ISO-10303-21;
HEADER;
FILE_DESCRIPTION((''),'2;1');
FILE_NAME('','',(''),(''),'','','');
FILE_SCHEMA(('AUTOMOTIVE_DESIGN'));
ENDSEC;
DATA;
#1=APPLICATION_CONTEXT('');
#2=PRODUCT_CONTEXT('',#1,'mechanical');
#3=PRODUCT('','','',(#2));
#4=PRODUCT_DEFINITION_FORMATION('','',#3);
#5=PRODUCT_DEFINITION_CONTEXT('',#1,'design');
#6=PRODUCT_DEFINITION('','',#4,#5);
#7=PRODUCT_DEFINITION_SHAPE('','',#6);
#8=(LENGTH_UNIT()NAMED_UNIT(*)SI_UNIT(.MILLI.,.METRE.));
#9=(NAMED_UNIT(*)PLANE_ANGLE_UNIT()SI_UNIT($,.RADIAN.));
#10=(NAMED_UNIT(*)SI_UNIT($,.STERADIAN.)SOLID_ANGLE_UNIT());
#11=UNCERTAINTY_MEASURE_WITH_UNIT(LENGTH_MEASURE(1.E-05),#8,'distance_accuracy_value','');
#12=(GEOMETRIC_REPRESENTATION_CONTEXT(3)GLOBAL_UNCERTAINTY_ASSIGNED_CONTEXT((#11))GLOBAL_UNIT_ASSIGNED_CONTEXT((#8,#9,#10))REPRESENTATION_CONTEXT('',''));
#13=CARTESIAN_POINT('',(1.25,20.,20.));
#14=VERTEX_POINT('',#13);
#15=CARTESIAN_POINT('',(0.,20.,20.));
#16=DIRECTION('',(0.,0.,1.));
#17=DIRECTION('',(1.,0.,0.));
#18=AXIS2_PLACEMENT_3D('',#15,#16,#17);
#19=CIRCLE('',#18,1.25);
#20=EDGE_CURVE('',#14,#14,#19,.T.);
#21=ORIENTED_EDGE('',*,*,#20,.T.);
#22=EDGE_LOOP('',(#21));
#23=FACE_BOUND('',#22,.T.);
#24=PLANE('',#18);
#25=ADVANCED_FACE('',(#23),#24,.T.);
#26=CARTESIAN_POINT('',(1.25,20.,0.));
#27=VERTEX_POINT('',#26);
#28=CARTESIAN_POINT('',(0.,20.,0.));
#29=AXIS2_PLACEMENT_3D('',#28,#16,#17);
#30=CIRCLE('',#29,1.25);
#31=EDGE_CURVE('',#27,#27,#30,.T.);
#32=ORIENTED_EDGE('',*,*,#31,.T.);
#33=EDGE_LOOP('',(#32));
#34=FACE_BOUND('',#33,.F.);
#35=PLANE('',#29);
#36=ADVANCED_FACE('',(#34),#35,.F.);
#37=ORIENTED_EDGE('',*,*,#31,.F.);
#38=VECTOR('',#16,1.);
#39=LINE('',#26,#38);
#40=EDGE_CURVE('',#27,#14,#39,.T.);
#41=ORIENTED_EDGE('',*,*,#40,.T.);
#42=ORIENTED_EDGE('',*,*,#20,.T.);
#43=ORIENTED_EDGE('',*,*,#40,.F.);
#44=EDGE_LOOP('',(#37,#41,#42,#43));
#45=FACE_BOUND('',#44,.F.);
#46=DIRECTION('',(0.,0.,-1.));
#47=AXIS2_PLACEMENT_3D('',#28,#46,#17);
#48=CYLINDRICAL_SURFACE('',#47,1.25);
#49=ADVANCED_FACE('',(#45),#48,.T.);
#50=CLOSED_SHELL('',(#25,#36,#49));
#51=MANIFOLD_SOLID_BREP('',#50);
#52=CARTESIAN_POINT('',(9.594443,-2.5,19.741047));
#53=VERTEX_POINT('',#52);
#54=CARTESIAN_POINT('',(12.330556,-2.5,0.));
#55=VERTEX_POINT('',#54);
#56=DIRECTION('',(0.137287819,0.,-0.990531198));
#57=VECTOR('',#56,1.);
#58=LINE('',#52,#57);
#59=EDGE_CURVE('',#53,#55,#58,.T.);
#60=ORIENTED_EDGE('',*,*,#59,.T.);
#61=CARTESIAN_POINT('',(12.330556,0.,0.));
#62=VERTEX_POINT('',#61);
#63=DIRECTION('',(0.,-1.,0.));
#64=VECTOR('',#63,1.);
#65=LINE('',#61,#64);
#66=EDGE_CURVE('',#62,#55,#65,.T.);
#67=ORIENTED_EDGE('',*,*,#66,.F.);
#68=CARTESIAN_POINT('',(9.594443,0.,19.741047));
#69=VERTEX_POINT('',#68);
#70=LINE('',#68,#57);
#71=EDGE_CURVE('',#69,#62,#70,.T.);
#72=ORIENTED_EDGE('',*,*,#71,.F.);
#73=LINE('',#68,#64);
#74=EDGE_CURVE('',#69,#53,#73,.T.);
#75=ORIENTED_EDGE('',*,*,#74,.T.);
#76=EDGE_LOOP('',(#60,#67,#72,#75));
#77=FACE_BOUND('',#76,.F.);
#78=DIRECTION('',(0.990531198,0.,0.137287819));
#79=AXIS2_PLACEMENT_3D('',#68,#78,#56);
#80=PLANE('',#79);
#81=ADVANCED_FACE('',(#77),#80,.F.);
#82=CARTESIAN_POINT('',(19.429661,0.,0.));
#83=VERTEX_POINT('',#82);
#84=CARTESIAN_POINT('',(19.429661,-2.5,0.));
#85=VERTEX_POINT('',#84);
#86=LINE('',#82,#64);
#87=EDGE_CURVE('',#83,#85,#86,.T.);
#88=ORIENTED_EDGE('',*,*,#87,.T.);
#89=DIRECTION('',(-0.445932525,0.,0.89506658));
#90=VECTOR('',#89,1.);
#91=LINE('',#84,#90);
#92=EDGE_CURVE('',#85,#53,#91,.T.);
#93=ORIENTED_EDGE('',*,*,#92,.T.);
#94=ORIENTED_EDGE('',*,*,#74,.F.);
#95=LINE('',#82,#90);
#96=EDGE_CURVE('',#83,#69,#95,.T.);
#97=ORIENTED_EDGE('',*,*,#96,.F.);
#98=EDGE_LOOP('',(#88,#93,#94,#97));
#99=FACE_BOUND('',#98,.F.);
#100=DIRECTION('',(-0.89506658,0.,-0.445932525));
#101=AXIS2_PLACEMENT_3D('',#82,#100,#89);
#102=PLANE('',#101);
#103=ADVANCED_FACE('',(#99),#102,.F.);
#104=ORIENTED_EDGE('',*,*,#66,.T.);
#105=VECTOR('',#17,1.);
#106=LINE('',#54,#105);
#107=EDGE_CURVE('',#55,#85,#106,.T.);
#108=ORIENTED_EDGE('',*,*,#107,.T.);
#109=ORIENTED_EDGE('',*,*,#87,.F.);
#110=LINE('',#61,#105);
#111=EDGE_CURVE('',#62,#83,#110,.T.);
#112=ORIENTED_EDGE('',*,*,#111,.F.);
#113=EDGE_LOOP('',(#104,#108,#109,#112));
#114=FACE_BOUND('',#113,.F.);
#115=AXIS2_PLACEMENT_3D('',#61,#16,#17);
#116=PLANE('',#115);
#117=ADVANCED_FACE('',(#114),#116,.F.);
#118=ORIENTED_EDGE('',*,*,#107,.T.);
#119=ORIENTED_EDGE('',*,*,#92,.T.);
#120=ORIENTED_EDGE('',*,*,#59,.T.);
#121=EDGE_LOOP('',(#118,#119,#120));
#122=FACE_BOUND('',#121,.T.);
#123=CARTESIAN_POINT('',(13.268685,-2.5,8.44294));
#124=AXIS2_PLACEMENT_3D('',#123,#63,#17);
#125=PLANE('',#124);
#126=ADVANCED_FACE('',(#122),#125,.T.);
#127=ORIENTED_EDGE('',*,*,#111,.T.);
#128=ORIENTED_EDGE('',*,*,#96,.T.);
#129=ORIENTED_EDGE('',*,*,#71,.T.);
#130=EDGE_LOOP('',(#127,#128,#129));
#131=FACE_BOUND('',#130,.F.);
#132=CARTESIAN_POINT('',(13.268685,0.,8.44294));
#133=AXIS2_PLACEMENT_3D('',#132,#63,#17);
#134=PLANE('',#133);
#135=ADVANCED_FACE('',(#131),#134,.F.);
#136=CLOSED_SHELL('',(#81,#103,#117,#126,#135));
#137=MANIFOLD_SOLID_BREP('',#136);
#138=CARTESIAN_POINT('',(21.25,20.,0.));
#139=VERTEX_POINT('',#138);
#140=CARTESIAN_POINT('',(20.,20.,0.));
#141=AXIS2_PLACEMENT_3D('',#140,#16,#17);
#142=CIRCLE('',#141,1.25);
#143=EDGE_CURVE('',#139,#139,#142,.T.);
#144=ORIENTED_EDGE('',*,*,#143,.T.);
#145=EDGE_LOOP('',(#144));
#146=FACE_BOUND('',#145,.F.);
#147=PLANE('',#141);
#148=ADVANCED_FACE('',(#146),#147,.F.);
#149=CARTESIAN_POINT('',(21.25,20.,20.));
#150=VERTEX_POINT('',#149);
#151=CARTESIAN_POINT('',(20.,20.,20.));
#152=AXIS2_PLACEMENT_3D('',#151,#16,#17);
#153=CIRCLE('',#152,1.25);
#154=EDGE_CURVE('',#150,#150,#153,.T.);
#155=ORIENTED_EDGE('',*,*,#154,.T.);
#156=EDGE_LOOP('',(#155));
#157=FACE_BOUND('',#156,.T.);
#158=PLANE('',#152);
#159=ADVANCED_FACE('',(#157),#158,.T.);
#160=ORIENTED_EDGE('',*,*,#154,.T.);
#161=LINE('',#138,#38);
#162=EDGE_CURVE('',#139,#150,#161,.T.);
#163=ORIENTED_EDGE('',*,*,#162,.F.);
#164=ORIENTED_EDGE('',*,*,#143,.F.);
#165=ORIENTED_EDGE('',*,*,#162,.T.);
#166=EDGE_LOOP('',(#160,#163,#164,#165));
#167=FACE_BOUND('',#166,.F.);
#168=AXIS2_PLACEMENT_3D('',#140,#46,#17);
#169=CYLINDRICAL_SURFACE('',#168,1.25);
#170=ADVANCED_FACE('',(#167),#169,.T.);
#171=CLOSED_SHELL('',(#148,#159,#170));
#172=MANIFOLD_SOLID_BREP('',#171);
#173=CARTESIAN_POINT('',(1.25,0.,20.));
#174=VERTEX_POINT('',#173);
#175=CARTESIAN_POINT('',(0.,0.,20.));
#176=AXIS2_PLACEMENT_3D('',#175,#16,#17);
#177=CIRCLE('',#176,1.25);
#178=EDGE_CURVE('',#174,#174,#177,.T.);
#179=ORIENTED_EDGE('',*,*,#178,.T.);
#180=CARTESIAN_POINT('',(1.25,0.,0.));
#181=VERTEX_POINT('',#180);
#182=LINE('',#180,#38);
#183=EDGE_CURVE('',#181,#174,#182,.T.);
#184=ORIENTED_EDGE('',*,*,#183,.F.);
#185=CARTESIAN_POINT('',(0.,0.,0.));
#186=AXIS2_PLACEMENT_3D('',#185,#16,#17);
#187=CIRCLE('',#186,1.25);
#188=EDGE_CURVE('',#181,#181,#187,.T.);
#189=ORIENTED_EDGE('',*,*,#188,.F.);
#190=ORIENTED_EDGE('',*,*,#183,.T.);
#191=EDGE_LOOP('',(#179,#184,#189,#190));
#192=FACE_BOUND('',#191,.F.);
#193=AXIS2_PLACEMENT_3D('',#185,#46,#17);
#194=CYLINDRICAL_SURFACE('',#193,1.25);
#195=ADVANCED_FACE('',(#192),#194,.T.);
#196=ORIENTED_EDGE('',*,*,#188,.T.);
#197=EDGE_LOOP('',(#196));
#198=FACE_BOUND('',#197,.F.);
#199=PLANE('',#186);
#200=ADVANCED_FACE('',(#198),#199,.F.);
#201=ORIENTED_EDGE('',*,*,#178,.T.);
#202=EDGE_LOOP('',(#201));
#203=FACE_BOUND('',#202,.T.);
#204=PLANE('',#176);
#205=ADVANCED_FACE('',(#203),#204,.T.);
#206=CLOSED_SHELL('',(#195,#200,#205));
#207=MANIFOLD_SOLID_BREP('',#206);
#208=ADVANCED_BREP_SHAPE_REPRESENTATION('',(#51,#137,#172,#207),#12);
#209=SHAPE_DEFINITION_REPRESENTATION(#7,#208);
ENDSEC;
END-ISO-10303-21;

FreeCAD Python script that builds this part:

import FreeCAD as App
import Part
import Sketcher
Q = App.Units.Quantity

doc = App.newDocument("Part")
body = doc.addObject("PartDesign::Body", "Body")
body.AllowCompound = True

# Sketch on XY plane
sketch1 = body.newObject("Sketcher::SketchObject", "Sketch")
sketch1.AttachmentSupport = (doc.getObject("XY_Plane"), [""])
sketch1.MapMode = "FlatFace"
sketch1.addGeometry([
    Part.Circle(App.Vector(0, 20, 0), App.Vector(0, 0, 1), 1.25),
    Part.Circle(App.Vector(0, 0, 0), App.Vector(0, 0, 1), 1.25),
    Part.Circle(App.Vector(20, 20, 0), App.Vector(0, 0, 1), 1.25),
], False)
sketch1.addConstraint([
    Sketcher.Constraint("Coincident", 1, 3, -1, 1),
    Sketcher.Constraint("Equal", 0, 1),
    Sketcher.Constraint("Equal", 1, 2),
    Sketcher.Constraint("PointOnObject", 0, 3, -2),
    Sketcher.Constraint("Horizontal", 0, 3, 2, 3),
    Sketcher.Constraint("Diameter", 0, Q("2.5 mm")),
    Sketcher.Constraint("DistanceY", -1, 1, 0, 3, Q("20 mm")),
    Sketcher.Constraint("DistanceX", -1, 1, 2, 3, Q("20 mm")),
])
pad1 = body.newObject("PartDesign::Pad", "Pad")
pad1.Profile = sketch1
pad1.Length = 20
body2 = doc.addObject("PartDesign::Body", "Body001")

# Sketch on XZ plane
sketch2 = body2.newObject("Sketcher::SketchObject", "Sketch001")
sketch2.AttachmentSupport = (doc.getObject("XZ_Plane001"), [""])
sketch2.MapMode = "FlatFace"
sketch2.addGeometry([
    Part.LineSegment(App.Vector(12.330556, 0, 0), App.Vector(19.429661, 0, 0)),
    Part.LineSegment(App.Vector(19.429661, 0, 0), App.Vector(9.594443, 19.741047, 0)),
    Part.LineSegment(App.Vector(9.594443, 19.741047, 0), App.Vector(12.330556, 0, 0)),
], False)
sketch2.addConstraint([
    Sketcher.Constraint("Coincident", 0, 2, 1, 1),
    Sketcher.Constraint("Coincident", 1, 2, 2, 1),
    Sketcher.Constraint("Coincident", 2, 2, 0, 1),
    Sketcher.Constraint("Horizontal", 0),
    Sketcher.Constraint("PointOnObject", 0, 2, -1),
    Sketcher.Constraint("DistanceX", 0, 1, 0, 2, Q("7.099105 mm")),
    Sketcher.Constraint("DistanceX", -1, 1, 0, 2, Q("19.429661 mm")),
    Sketcher.Constraint("Distance", 1, Q("22.055395 mm")),
    Sketcher.Constraint("Distance", 2, Q("19.929758 mm")),
])
pad2 = body2.newObject("PartDesign::Pad", "Pad001")
pad2.Profile = sketch2
pad2.Length = 2.5

doc.recompute()
